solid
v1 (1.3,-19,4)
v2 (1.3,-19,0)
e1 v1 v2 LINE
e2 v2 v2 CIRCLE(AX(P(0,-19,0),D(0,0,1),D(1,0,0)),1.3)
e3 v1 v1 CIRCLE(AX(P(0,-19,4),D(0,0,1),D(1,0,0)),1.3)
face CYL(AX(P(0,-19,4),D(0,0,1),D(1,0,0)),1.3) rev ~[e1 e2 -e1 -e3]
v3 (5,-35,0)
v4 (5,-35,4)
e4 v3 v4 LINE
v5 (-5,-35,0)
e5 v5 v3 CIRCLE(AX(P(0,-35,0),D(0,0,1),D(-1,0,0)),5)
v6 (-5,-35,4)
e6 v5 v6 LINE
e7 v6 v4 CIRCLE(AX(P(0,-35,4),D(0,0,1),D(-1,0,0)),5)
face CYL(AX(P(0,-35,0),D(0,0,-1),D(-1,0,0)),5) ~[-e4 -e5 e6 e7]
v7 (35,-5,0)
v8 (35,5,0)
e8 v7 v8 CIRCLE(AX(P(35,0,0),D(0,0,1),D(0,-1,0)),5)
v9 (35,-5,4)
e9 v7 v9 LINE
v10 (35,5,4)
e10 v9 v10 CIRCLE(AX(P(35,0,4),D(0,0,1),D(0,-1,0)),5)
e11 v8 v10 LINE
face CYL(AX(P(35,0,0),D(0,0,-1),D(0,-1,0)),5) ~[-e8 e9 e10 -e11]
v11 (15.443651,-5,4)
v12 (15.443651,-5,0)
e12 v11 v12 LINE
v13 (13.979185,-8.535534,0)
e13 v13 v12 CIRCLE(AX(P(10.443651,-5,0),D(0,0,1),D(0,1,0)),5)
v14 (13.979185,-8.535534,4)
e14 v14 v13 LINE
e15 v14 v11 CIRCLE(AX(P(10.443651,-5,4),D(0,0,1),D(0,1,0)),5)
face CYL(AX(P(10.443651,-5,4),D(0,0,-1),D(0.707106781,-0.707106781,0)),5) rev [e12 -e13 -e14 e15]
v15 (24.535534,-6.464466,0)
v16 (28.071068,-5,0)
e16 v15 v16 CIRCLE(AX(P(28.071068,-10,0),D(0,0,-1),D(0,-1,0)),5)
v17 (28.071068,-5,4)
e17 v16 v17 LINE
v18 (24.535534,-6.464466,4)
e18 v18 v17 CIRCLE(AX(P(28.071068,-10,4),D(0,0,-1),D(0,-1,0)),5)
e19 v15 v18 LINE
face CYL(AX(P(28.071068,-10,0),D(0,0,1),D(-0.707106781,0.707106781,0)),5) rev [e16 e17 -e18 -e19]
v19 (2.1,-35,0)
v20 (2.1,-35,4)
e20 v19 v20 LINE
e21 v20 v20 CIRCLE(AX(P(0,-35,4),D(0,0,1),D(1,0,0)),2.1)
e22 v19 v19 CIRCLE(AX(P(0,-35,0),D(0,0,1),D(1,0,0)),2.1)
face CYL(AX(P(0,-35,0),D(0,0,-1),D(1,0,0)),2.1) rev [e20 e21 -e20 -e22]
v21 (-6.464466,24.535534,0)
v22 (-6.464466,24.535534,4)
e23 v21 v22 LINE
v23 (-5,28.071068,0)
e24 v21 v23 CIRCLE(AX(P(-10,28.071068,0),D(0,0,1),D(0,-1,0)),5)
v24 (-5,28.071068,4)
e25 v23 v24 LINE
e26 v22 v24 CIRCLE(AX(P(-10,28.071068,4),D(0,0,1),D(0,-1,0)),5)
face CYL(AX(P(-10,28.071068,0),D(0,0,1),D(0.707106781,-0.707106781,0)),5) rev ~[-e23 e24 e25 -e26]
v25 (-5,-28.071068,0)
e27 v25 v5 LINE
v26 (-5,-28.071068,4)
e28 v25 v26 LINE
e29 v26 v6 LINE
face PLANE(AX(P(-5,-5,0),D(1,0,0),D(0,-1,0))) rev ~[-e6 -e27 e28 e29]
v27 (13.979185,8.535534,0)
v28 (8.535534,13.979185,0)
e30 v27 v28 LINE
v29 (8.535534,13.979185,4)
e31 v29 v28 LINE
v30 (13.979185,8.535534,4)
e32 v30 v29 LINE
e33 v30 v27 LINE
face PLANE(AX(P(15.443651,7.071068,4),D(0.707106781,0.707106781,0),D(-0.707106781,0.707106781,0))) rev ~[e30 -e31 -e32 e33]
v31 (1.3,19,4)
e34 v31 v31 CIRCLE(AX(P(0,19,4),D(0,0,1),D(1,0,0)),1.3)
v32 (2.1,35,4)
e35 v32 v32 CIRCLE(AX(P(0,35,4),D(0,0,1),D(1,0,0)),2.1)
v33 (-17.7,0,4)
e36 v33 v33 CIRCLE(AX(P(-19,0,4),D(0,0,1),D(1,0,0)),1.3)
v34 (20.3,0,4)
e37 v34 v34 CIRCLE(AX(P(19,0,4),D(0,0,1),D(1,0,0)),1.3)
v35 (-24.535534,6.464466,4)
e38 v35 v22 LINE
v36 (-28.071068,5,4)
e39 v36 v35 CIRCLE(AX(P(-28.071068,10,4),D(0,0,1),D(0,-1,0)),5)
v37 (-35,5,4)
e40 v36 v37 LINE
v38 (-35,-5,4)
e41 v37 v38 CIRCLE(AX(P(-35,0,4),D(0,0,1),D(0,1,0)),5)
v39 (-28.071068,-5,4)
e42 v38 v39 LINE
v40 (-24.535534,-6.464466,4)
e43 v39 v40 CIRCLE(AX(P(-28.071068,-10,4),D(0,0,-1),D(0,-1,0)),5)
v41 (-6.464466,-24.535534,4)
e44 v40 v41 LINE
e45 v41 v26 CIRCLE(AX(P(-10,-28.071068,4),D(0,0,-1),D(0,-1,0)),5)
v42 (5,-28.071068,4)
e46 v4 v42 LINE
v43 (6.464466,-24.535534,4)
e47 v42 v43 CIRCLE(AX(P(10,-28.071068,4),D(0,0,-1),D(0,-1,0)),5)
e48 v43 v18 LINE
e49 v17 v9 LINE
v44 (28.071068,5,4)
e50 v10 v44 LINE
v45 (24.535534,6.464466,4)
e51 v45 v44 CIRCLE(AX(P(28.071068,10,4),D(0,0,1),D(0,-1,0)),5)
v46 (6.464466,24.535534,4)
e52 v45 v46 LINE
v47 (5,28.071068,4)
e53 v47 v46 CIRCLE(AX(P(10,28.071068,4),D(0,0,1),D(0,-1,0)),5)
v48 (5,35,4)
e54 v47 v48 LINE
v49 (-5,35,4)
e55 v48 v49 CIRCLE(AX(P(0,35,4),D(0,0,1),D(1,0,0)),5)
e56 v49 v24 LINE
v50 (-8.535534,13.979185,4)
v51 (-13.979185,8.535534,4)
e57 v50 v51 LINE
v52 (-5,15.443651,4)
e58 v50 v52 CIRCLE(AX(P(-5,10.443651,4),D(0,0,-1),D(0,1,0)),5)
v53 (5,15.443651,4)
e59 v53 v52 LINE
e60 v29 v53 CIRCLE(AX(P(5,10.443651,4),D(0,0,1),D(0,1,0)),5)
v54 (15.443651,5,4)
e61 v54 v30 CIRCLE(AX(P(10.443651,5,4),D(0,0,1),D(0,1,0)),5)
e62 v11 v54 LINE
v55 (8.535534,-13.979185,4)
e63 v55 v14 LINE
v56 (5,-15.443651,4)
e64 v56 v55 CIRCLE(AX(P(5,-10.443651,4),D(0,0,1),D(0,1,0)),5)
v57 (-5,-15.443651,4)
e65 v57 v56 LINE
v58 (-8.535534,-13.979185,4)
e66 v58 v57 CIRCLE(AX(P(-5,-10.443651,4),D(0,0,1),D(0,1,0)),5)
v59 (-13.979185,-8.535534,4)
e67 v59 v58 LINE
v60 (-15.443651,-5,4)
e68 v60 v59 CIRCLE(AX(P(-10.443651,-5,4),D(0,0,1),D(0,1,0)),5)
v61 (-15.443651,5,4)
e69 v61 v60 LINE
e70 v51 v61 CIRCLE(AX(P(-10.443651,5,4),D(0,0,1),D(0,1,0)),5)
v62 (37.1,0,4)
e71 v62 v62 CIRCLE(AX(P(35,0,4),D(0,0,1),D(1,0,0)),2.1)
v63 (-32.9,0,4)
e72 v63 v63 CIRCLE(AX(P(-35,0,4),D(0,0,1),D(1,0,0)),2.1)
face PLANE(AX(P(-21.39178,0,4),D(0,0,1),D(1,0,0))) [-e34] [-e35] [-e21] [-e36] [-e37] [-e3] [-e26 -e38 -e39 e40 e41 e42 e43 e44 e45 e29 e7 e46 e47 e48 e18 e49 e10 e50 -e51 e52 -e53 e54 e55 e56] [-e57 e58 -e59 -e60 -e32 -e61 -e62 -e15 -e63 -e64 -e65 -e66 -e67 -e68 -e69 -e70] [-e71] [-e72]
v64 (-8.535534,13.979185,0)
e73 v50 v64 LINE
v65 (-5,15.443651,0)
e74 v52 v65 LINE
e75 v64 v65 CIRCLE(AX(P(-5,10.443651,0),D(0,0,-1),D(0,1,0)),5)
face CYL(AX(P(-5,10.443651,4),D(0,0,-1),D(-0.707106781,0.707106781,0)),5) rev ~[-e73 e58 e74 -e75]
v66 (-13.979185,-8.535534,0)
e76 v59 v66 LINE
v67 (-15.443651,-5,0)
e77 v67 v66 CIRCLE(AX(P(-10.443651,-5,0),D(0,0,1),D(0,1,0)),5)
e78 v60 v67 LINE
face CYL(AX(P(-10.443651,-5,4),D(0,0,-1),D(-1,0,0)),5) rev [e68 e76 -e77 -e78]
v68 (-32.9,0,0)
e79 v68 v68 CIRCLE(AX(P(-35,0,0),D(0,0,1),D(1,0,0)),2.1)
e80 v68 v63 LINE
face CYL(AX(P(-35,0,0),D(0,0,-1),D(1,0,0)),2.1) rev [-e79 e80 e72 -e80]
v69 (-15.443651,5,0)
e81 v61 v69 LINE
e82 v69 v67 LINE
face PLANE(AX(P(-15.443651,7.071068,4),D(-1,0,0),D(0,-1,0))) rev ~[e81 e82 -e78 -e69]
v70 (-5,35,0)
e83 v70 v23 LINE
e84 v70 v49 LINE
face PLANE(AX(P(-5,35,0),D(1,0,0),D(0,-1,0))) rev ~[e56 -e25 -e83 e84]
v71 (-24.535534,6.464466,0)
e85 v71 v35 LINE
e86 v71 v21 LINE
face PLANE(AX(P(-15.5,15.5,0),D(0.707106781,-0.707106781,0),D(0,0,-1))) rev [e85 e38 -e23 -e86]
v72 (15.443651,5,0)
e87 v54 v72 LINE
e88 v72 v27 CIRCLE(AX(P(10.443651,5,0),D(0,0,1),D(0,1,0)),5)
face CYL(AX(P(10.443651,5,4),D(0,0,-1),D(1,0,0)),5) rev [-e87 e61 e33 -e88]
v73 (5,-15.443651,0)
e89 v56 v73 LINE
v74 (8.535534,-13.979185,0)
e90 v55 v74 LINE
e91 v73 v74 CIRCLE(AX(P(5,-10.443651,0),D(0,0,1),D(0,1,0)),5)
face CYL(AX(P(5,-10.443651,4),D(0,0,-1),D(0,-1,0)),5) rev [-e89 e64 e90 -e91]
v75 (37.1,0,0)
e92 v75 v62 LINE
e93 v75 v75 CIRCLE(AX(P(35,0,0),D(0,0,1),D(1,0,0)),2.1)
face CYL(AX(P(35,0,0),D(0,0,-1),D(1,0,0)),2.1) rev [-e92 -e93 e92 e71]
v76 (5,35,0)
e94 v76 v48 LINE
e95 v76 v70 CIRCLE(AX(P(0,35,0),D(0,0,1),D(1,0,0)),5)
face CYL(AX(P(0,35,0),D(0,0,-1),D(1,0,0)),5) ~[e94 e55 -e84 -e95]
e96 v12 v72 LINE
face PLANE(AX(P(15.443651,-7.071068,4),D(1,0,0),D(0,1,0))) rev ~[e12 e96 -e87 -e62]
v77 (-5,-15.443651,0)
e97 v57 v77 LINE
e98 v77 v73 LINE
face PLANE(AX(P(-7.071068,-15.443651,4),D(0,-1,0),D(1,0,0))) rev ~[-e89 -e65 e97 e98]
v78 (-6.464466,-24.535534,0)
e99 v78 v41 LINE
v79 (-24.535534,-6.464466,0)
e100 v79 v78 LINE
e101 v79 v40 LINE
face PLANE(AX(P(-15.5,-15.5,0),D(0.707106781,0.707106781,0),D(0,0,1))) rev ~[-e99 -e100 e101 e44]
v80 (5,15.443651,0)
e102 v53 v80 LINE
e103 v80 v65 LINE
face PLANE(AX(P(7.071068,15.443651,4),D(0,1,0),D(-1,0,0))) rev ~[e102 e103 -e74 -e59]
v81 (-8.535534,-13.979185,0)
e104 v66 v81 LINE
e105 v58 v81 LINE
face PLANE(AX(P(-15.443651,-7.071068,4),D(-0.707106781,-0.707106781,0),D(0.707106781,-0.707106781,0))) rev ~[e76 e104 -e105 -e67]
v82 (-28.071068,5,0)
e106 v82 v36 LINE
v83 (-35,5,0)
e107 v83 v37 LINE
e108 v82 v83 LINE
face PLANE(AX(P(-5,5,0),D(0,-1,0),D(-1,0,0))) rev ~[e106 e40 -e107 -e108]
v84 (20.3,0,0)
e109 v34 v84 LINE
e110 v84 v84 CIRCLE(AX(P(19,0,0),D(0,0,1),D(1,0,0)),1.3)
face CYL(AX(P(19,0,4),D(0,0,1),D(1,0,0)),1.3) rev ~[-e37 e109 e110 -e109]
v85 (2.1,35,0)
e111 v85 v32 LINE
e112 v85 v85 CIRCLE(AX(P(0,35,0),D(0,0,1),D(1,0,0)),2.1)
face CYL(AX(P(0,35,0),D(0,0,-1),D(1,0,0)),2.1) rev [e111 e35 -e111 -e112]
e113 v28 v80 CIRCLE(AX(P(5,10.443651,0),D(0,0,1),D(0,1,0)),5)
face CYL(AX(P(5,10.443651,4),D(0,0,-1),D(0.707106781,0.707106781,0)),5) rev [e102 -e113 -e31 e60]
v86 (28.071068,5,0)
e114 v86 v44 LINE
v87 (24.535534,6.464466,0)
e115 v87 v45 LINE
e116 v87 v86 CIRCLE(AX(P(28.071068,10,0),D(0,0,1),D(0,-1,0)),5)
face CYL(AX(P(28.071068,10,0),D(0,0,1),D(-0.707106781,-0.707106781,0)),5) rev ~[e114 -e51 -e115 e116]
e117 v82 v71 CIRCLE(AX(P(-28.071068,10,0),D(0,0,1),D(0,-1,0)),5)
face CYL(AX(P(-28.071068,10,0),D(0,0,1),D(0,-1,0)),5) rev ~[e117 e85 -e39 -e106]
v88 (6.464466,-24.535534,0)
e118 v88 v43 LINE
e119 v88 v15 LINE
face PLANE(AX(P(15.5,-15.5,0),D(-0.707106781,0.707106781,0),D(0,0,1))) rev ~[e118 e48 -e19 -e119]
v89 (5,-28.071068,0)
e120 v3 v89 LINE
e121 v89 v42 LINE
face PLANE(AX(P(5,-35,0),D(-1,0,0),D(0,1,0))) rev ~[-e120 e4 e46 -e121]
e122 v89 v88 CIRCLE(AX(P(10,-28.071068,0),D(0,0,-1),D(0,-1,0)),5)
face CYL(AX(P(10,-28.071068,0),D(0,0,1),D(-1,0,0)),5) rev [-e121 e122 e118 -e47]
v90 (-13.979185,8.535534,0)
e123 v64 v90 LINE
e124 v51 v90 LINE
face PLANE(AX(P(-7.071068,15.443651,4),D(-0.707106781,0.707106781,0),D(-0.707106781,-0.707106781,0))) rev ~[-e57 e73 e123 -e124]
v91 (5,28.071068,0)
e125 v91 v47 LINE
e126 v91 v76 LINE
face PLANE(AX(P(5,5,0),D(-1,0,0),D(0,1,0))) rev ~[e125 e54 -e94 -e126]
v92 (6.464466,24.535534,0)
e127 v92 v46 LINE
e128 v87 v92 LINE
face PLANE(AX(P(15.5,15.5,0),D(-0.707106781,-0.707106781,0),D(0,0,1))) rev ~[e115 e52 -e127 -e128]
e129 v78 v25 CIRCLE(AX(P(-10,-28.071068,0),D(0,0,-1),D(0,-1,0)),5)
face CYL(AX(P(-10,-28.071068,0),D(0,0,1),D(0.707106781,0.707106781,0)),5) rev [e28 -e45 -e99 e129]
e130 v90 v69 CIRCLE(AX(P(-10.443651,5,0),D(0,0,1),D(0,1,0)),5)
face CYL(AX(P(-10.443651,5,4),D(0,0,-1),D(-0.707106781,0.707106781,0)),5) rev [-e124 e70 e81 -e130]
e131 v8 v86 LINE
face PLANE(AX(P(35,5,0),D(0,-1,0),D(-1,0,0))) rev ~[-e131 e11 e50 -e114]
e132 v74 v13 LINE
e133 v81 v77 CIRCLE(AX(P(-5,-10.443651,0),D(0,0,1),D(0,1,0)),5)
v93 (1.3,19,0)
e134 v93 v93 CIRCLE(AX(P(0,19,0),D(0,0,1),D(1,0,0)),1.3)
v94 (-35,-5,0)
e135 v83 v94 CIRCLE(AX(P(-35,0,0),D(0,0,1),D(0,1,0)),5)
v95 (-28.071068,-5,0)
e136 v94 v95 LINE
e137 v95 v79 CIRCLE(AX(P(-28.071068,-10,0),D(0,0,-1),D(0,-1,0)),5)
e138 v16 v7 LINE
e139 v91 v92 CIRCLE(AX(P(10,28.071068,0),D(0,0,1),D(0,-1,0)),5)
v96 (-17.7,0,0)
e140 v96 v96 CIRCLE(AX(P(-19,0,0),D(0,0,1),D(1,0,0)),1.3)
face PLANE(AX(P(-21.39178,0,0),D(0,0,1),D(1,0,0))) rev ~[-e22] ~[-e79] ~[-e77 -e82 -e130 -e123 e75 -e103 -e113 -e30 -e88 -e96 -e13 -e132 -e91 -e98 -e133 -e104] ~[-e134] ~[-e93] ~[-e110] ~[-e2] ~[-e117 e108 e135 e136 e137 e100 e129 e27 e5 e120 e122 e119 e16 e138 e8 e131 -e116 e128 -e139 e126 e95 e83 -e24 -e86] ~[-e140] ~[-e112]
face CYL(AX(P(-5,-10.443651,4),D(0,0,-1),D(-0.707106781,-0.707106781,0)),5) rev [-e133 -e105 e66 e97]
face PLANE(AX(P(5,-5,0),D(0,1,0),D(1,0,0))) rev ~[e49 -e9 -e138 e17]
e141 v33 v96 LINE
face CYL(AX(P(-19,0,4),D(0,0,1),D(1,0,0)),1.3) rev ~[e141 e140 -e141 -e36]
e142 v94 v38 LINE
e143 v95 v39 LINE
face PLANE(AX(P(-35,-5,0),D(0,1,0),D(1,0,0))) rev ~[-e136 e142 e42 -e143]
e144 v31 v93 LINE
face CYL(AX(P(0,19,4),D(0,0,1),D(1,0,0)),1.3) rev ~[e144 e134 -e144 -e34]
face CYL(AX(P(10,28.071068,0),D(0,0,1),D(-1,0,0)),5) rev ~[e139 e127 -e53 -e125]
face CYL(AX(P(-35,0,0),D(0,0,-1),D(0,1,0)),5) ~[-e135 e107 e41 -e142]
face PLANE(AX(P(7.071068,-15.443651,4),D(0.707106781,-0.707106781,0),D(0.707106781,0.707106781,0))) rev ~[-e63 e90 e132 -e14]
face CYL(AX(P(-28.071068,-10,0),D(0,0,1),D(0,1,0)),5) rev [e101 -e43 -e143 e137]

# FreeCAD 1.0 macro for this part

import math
import FreeCAD as App
import Part
import Sketcher
from FreeCAD import Vector
Q = App.Units.Quantity


def edges_at(feature, points):
    """Names of the edges that pass closest to the given points."""
    edges = feature.Shape.Edges
    near = lambda p: min(range(len(edges)), key=lambda i: edges[i].distToShape(Part.Vertex(*p))[0])
    return sorted({f"Edge{near(p) + 1}" for p in points})

doc = App.newDocument("Part")
body = doc.addObject("PartDesign::Body", "Body")

# Sketch on XY plane
sketch1 = body.newObject("Sketcher::SketchObject", "Sketch")
sketch1.AttachmentSupport = (doc.getObject("XY_Plane"), [""])
sketch1.MapMode = "FlatFace"
sketch1.addGeometry([
    Part.LineSegment(Vector(5, 5, 0), Vector(5, 35, 0)),  # 0
    Part.ArcOfCircle(Part.Circle(Vector(0, 35, 0), Vector(0, 0, 1), 5), math.radians(0), math.radians(180)),  # 1
    Part.LineSegment(Vector(-5, 35, 0), Vector(-5, 5, 0)),  # 2
    Part.LineSegment(Vector(-5, 5, 0), Vector(-35, 5, 0)),  # 3
    Part.ArcOfCircle(Part.Circle(Vector(-35, 0, 0), Vector(0, 0, 1), 5), math.radians(90), math.radians(270)),  # 4
    Part.LineSegment(Vector(-35, -5, 0), Vector(-5, -5, 0)),  # 5
    Part.LineSegment(Vector(-5, -5, 0), Vector(-5, -35, 0)),  # 6
    Part.ArcOfCircle(Part.Circle(Vector(0, -35, 0), Vector(0, 0, 1), 5), math.radians(180), math.radians(360)),  # 7
    Part.LineSegment(Vector(5, -35, 0), Vector(5, -5, 0)),  # 8
    Part.LineSegment(Vector(5, -5, 0), Vector(35, -5, 0)),  # 9
    Part.ArcOfCircle(Part.Circle(Vector(35, 0, 0), Vector(0, 0, 1), 5), math.radians(-90), math.radians(90)),  # 10
    Part.LineSegment(Vector(35, 5, 0), Vector(5, 5, 0)),  # 11
    Part.Circle(Vector(0, 35, 0), Vector(0, 0, 1), 2.1),  # 12
    Part.Circle(Vector(-35, 0, 0), Vector(0, 0, 1), 2.1),  # 13
    Part.Circle(Vector(0, -35, 0), Vector(0, 0, 1), 2.1),  # 14
    Part.Circle(Vector(35, 0, 0), Vector(0, 0, 1), 2.1),  # 15
], False)
sketch1.addConstraint([
    Sketcher.Constraint("Tangent", 0, 2, 1, 1),
    Sketcher.Constraint("Tangent", 1, 2, 2, 1),
    Sketcher.Constraint("Coincident", 2, 2, 3, 1),
    Sketcher.Constraint("Tangent", 3, 2, 4, 1),
    Sketcher.Constraint("Tangent", 4, 2, 5, 1),
    Sketcher.Constraint("Coincident", 5, 2, 6, 1),
    Sketcher.Constraint("Tangent", 6, 2, 7, 1),
    Sketcher.Constraint("Tangent", 7, 2, 8, 1),
    Sketcher.Constraint("Coincident", 8, 2, 9, 1),
    Sketcher.Constraint("Tangent", 9, 2, 10, 1),
    Sketcher.Constraint("Tangent", 10, 2, 11, 1),
    Sketcher.Constraint("Coincident", 11, 2, 0, 1),
    Sketcher.Constraint("Vertical", 0),
    Sketcher.Constraint("Vertical", 2),
    Sketcher.Constraint("Horizontal", 3),
    Sketcher.Constraint("Horizontal", 5),
    Sketcher.Constraint("Vertical", 6),
    Sketcher.Constraint("Vertical", 8),
    Sketcher.Constraint("Horizontal", 9),
    Sketcher.Constraint("Horizontal", 11),
    Sketcher.Constraint("Coincident", 12, 3, 1, 3),
    Sketcher.Constraint("Coincident", 13, 3, 4, 3),
    Sketcher.Constraint("Coincident", 14, 3, 7, 3),
    Sketcher.Constraint("Coincident", 15, 3, 10, 3),
    Sketcher.Constraint("Equal", 1, 4),
    Sketcher.Constraint("Equal", 4, 7),
    Sketcher.Constraint("Equal", 7, 10),
    Sketcher.Constraint("Equal", 12, 13),
    Sketcher.Constraint("Equal", 13, 14),
    Sketcher.Constraint("Equal", 14, 15),
    Sketcher.Constraint("Symmetric", 1, 3, 7, 3, -1, 1),
    Sketcher.Constraint("Symmetric", 4, 3, 10, 3, -1, 1),
    Sketcher.Constraint("Symmetric", 5, 2, 8, 2, -2),
    Sketcher.Constraint("Equal", 11, 0),
    Sketcher.Constraint("Radius", 1, Q("5 mm")),
    Sketcher.Constraint("Diameter", 12, Q("4.2 mm")),
    Sketcher.Constraint("DistanceX", 3, 2, 3, 1, Q("30 mm")),
])
pad1 = body.newObject("PartDesign::Pad", "Pad")
pad1.Profile = sketch1
pad1.Length = 4
doc.recompute()

chamfer = body.newObject("PartDesign::Chamfer", "Chamfer")
chamfer.Base = (pad1, edges_at(pad1, [
    (5, 5, 2),
    (5, -5, 2),
    (-5, -5, 2),
    (-5, 5, 2),
]))
chamfer.Size = 21

# Sketch on XY plane
sketch2 = body.newObject("Sketcher::SketchObject", "Sketch001")
sketch2.AttachmentSupport = (doc.getObject("XY_Plane"), [""])
sketch2.MapMode = "FlatFace"
sketch2.AttachmentOffset = App.Placement(Vector(0, 0, 4), App.Rotation())
sketch2.addGeometry([
    Part.Circle(Vector(0, 19, 0), Vector(0, 0, 1), 1.3),  # 0
    Part.Circle(Vector(19, 0, 0), Vector(0, 0, 1), 1.3),  # 1
    Part.Circle(Vector(0, -19, 0), Vector(0, 0, 1), 1.3),  # 2
    Part.Circle(Vector(-19, 0, 0), Vector(0, 0, 1), 1.3),  # 3
    Part.LineSegment(Vector(-7.1, 15.4, 0), Vector(-15.4, 7.1, 0)),  # 4
    Part.LineSegment(Vector(-15.4, 7.1, 0), Vector(-15.4, -7.1, 0)),  # 5
    Part.LineSegment(Vector(-15.4, -7.1, 0), Vector(-7.1, -15.4, 0)),  # 6
    Part.LineSegment(Vector(-7.1, -15.4, 0), Vector(7.1, -15.4, 0)),  # 7
    Part.LineSegment(Vector(7.1, -15.4, 0), Vector(15.4, -7.1, 0)),  # 8
    Part.LineSegment(Vector(15.4, -7.1, 0), Vector(15.4, 7.1, 0)),  # 9
    Part.LineSegment(Vector(15.4, 7.1, 0), Vector(7.1, 15.4, 0)),  # 10
    Part.LineSegment(Vector(7.1, 15.4, 0), Vector(-7.1, 15.4, 0)),  # 11
], False)
sketch2.addConstraint([
    Sketcher.Constraint("Coincident", 4, 2, 5, 1),
    Sketcher.Constraint("Coincident", 5, 2, 6, 1),
    Sketcher.Constraint("Coincident", 6, 2, 7, 1),
    Sketcher.Constraint("Coincident", 7, 2, 8, 1),
    Sketcher.Constraint("Coincident", 8, 2, 9, 1),
    Sketcher.Constraint("Coincident", 9, 2, 10, 1),
    Sketcher.Constraint("Coincident", 10, 2, 11, 1),
    Sketcher.Constraint("Coincident", 11, 2, 4, 1),
    Sketcher.Constraint("Vertical", 5),
    Sketcher.Constraint("Horizontal", 7),
    Sketcher.Constraint("Vertical", 9),
    Sketcher.Constraint("Horizontal", 11),
    Sketcher.Constraint("Equal", 0, 1),
    Sketcher.Constraint("Equal", 1, 2),
    Sketcher.Constraint("Equal", 2, 3),
    Sketcher.Constraint("Symmetric", 0, 3, 2, 3, -1, 1),
    Sketcher.Constraint("Symmetric", 1, 3, 3, 3, -1, 1),
    Sketcher.Constraint("Symmetric", 4, 2, 8, 2, -1, 1),
    Sketcher.Constraint("Symmetric", 6, 2, 10, 2, -1, 1),
    Sketcher.Constraint("PointOnObject", 0, 3, -2),
    Sketcher.Constraint("PointOnObject", 1, 3, -1),
    Sketcher.Constraint("Perpendicular", 4, 6),
    Sketcher.Constraint("Perpendicular", 6, 8),
    Sketcher.Constraint("Perpendicular", 8, 10),
    Sketcher.Constraint("Horizontal", 5, 2, 8, 2),
    Sketcher.Constraint("Vertical", 7, 2, 10, 2),
    Sketcher.Constraint("Equal", 11, 5),
    Sketcher.Constraint("Diameter", 0, Q("2.6 mm")),
    Sketcher.Constraint("DistanceY", -1, 1, 0, 3, Q("19 mm")),
    Sketcher.Constraint("DistanceX", -1, 1, 1, 3, Q("19 mm")),
    Sketcher.Constraint("Distance", 4, Q("11.84062 mm")),
    Sketcher.Constraint("DistanceX", 7, 1, 7, 2, Q("14.142136 mm")),
])
pocket1 = body.newObject("PartDesign::Pocket", "Pocket")
pocket1.Profile = sketch2
pocket1.Type = "ThroughAll"
doc.recompute()

fillet = body.newObject("PartDesign::Fillet", "Fillet")
fillet.Base = (pocket1, edges_at(pocket1, [
    (15.444, -7.071, 2),
    (7.071, -15.444, 2),
    (-7.071, -15.444, 2),
    (-15.444, -7.071, 2),
    (-15.444, 7.071, 2),
    (-5, -26, 2),
    (-26, -5, 2),
    (26, -5, 2),
    (5, -26, 2),
    (5, 26, 2),
    (26, 5, 2),
    (-26, 5, 2),
    (-5, 26, 2),
    (-7.071, 15.444, 2),
    (7.071, 15.444, 2),
    (15.444, 7.071, 2),
]))
fillet.Radius = 5

doc.recompute()
